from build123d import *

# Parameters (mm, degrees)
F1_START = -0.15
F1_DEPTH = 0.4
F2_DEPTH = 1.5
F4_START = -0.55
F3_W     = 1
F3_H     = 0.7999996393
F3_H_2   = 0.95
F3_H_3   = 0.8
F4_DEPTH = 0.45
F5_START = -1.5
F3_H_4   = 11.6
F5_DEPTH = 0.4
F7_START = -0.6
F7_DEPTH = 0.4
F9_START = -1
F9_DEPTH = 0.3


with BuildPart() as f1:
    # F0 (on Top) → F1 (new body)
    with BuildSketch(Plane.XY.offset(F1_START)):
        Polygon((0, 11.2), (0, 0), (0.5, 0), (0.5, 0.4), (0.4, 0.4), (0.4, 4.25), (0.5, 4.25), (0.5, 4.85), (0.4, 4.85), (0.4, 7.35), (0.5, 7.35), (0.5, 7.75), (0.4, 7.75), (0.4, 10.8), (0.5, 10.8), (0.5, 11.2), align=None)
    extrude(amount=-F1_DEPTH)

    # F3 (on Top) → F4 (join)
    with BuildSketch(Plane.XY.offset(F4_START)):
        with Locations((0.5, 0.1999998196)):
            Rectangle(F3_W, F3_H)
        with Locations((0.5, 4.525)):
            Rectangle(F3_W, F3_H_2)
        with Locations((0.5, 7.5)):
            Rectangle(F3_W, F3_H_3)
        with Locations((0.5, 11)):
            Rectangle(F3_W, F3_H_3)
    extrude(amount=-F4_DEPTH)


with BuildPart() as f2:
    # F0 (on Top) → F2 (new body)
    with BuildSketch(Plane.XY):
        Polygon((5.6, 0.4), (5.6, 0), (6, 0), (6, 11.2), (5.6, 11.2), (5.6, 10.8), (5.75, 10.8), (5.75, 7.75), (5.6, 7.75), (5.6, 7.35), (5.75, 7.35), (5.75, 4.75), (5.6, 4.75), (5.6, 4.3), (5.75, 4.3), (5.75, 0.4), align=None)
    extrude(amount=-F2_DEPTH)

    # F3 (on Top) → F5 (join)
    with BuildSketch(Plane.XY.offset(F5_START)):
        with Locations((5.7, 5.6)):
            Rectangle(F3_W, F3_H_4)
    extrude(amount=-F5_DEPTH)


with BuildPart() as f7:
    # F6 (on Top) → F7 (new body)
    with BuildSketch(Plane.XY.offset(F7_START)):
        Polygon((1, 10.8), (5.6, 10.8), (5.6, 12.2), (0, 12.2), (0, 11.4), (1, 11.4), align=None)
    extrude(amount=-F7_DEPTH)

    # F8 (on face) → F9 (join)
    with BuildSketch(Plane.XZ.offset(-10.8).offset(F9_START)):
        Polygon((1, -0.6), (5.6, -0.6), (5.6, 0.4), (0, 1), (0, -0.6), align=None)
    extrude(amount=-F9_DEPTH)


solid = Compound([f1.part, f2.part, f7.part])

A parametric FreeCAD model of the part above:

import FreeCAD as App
import Part
import Sketcher


def add_polygon(sketch, points):
    """Adds a closed chain of lines whose ends are joined by coincident constraints."""
    first, n = sketch.GeometryCount, len(points)
    for a, b in zip(points, points[1:] + points[:1]):
        sketch.addGeometry(Part.LineSegment(App.Vector(*a, 0), App.Vector(*b, 0)), False)
    for i in range(n):
        sketch.addConstraint(Sketcher.Constraint("Coincident", first + i, 2, first + (i + 1) % n, 1))

doc = App.newDocument("Part")
params = doc.addObject("Spreadsheet::Sheet", "Params")
for row, (alias, value) in enumerate([
    ("sketch1_width", "0.5 mm"),
    ("sketch1_width2", "0.1 mm"),
    ("sketch1_height", "11.2 mm"),
    ("sketch1_height2", "0.4 mm"),
    ("sketch1_height3", "0.6 mm"),
    ("pad1_length", "0.4 mm"),
    ("sketch2_width", "1 mm"),
    ("sketch2_height", "0.8 mm"),
    ("sketch2_height2", "0.95 mm"),
    ("pad2_length", "0.45 mm"),
    ("sketch3_width", "0.4 mm"),
    ("sketch3_height", "11.2 mm"),
    ("sketch3_height2", "2.6 mm"),
    ("sketch3_height3", "3.9 mm"),
    ("sketch3_width2", "0.15 mm"),
    ("pad3_length", "1.5 mm"),
    ("sketch4_width", "1 mm"),
    ("sketch4_height", "11.6 mm"),
    ("pad4_length", "0.4 mm"),
    ("sketch5_width", "1 mm"),
    ("sketch5_width2", "4.6 mm"),
    ("sketch5_height", "1.4 mm"),
    ("sketch5_height2", "0.8 mm"),
    ("pad5_length", "0.4 mm"),
    ("sketch6_height", "1 mm"),
    ("sketch6_width", "5.6 mm"),
    ("sketch6_height2", "1.6 mm"),
    ("pad6_length", "0.3 mm"),
], start=1):
    params.set(f"A{row}", alias)
    params.set(f"B{row}", "=" + value)
    params.setAlias(f"B{row}", alias)

body = doc.addObject("PartDesign::Body", "Body")

# Sketch on XY plane
sketch1 = body.newObject("Sketcher::SketchObject", "Sketch")
sketch1.AttachmentSupport = (doc.getObject("XY_Plane"), [""])
sketch1.MapMode = "FlatFace"
sketch1.AttachmentOffset = App.Placement(App.Vector(0, 0, -0.15), App.Rotation())
add_polygon(sketch1, [(0, 11.2), (0, 0), (0.5, 0), (0.5, 0.4), (0.4, 0.4), (0.4, 4.25), (0.5, 4.25), (0.5, 4.85), (0.4, 4.85), (0.4, 7.35), (0.5, 7.35), (0.5, 7.75), (0.4, 7.75), (0.4, 10.8), (0.5, 10.8), (0.5, 11.2)])  # lines 0-15
sketch1.addConstraint(Sketcher.Constraint("Vertical", 0))
sketch1.addConstraint(Sketcher.Constraint("Horizontal", 1))
sketch1.addConstraint(Sketcher.Constraint("Vertical", 2))
sketch1.addConstraint(Sketcher.Constraint("Horizontal", 3))
sketch1.addConstraint(Sketcher.Constraint("Vertical", 4))
sketch1.addConstraint(Sketcher.Constraint("Horizontal", 5))
sketch1.addConstraint(Sketcher.Constraint("Vertical", 6))
sketch1.addConstraint(Sketcher.Constraint("Horizontal", 7))
sketch1.addConstraint(Sketcher.Constraint("Vertical", 8))
sketch1.addConstraint(Sketcher.Constraint("Horizontal", 9))
sketch1.addConstraint(Sketcher.Constraint("Vertical", 10))
sketch1.addConstraint(Sketcher.Constraint("Horizontal", 11))
sketch1.addConstraint(Sketcher.Constraint("Vertical", 12))
sketch1.addConstraint(Sketcher.Constraint("Horizontal", 13))
sketch1.addConstraint(Sketcher.Constraint("Vertical", 14))
sketch1.addConstraint(Sketcher.Constraint("Horizontal", 15))
sketch1.addConstraint(Sketcher.Constraint("Coincident", 0, 2, -1, 1))
sketch1.addConstraint(Sketcher.Constraint("Vertical", 2, 2, 5, 2))
sketch1.addConstraint(Sketcher.Constraint("Vertical", 4, 2, 7, 2))
sketch1.addConstraint(Sketcher.Constraint("Vertical", 6, 2, 9, 2))
sketch1.addConstraint(Sketcher.Constraint("Vertical", 8, 2, 11, 2))
sketch1.addConstraint(Sketcher.Constraint("Vertical", 10, 2, 13, 2))
sketch1.addConstraint(Sketcher.Constraint("Equal", 2, 10))
sketch1.addConstraint(Sketcher.Constraint("Equal", 10, 14))
sketch1.addConstraint(Sketcher.Constraint("DistanceX", 1, 1, 1, 2, 0.5))
sketch1.addConstraint(Sketcher.Constraint("DistanceX", 3, 2, 3, 1, 0.1))
sketch1.addConstraint(Sketcher.Constraint("DistanceY", 0, 2, 0, 1, 11.2))
sketch1.addConstraint(Sketcher.Constraint("DistanceY", 2, 1, 2, 2, 0.4))
sketch1.addConstraint(Sketcher.Constraint("DistanceY", 6, 1, 6, 2, 0.6))
sketch1.addConstraint(Sketcher.Constraint("DistanceY", 8, 1, 8, 2, 2.5))
sketch1.addConstraint(Sketcher.Constraint("DistanceY", 4, 1, 4, 2, 3.85))
sketch1.setExpression("Constraints[40]", "Params.sketch1_width")
sketch1.setExpression("Constraints[41]", "Params.sketch1_width2")
sketch1.setExpression("Constraints[42]", "Params.sketch1_height")
sketch1.setExpression("Constraints[43]", "Params.sketch1_height2")
sketch1.setExpression("Constraints[44]", "Params.sketch1_height3")
pad1 = body.newObject("PartDesign::Pad", "Pad")
pad1.Profile = sketch1
pad1.setExpression("Length", "Params.pad1_length")
pad1.Reversed = True

# Sketch on XY plane
sketch2 = body.newObject("Sketcher::SketchObject", "Sketch001")
sketch2.AttachmentSupport = (doc.getObject("XY_Plane"), [""])
sketch2.MapMode = "FlatFace"
sketch2.AttachmentOffset = App.Placement(App.Vector(0, 0, -0.55), App.Rotation())
add_polygon(sketch2, [(0, 0.6), (0, -0.2), (1, -0.2), (1, 0.6)])  # lines 0-3
add_polygon(sketch2, [(0, 5), (0, 4.05), (1, 4.05), (1, 5)])  # lines 4-7
add_polygon(sketch2, [(0, 7.9), (0, 7.1), (1, 7.1), (1, 7.9)])  # lines 8-11
add_polygon(sketch2, [(0, 11.4), (0, 10.6), (1, 10.6), (1, 11.4)])  # lines 12-15
sketch2.addConstraint(Sketcher.Constraint("Vertical", 0))
sketch2.addConstraint(Sketcher.Constraint("Horizontal", 1))
sketch2.addConstraint(Sketcher.Constraint("Vertical", 2))
sketch2.addConstraint(Sketcher.Constraint("Horizontal", 3))
sketch2.addConstraint(Sketcher.Constraint("Vertical", 4))
sketch2.addConstraint(Sketcher.Constraint("Horizontal", 5))
sketch2.addConstraint(Sketcher.Constraint("Vertical", 6))
sketch2.addConstraint(Sketcher.Constraint("Horizontal", 7))
sketch2.addConstraint(Sketcher.Constraint("Vertical", 8))
sketch2.addConstraint(Sketcher.Constraint("Horizontal", 9))
sketch2.addConstraint(Sketcher.Constraint("Vertical", 10))
sketch2.addConstraint(Sketcher.Constraint("Horizontal", 11))
sketch2.addConstraint(Sketcher.Constraint("Vertical", 12))
sketch2.addConstraint(Sketcher.Constraint("Horizontal", 13))
sketch2.addConstraint(Sketcher.Constraint("Vertical", 14))
sketch2.addConstraint(Sketcher.Constraint("Horizontal", 15))
sketch2.addConstraint(Sketcher.Constraint("PointOnObject", 0, 2, -2))
sketch2.addConstraint(Sketcher.Constraint("PointOnObject", 4, 2, -2))
sketch2.addConstraint(Sketcher.Constraint("PointOnObject", 8, 2, -2))
sketch2.addConstraint(Sketcher.Constraint("PointOnObject", 12, 2, -2))
sketch2.addConstraint(Sketcher.Constraint("Vertical", 2, 2, 5, 2))
sketch2.addConstraint(Sketcher.Constraint("Vertical", 6, 2, 9, 2))
sketch2.addConstraint(Sketcher.Constraint("Vertical", 10, 2, 13, 2))
sketch2.addConstraint(Sketcher.Constraint("Equal", 2, 8))
sketch2.addConstraint(Sketcher.Constraint("Equal", 10, 12))
sketch2.addConstraint(Sketcher.Constraint("DistanceX", 1, 1, 1, 2, 1.0))
sketch2.addConstraint(Sketcher.Constraint("DistanceY", 0, 2, 0, 1, 0.8))
sketch2.addConstraint(Sketcher.Constraint("DistanceY", -1, 1, 6, 2, 5.0))
sketch2.addConstraint(Sketcher.Constraint("DistanceY", 4, 2, 4, 1, 0.95))
sketch2.addConstraint(Sketcher.Constraint("DistanceY", 0, 2, -1, 1, 0.2))
sketch2.addConstraint(Sketcher.Constraint("DistanceY", -1, 1, 8, 2, 7.1))
sketch2.addConstraint(Sketcher.Constraint("DistanceY", -1, 1, 12, 2, 10.6))
sketch2.setExpression("Constraints[41]", "Params.sketch2_width")
sketch2.setExpression("Constraints[42]", "Params.sketch2_height")
sketch2.setExpression("Constraints[44]", "Params.sketch2_height2")
pad2 = body.newObject("PartDesign::Pad", "Pad001")
pad2.Profile = sketch2
pad2.setExpression("Length", "Params.pad2_length")
pad2.Reversed = True
body2 = doc.addObject("PartDesign::Body", "Body001")

# Sketch on XY plane
sketch3 = body2.newObject("Sketcher::SketchObject", "Sketch002")
sketch3.AttachmentSupport = (doc.getObject("XY_Plane001"), [""])
sketch3.MapMode = "FlatFace"
add_polygon(sketch3, [(5.6, 0.4), (5.6, 0), (6, 0), (6, 11.2), (5.6, 11.2), (5.6, 10.8), (5.75, 10.8), (5.75, 7.75), (5.6, 7.75), (5.6, 7.35), (5.75, 7.35), (5.75, 4.75), (5.6, 4.75), (5.6, 4.3), (5.75, 4.3), (5.75, 0.4)])  # lines 0-15
sketch3.addConstraint(Sketcher.Constraint("Vertical", 0))
sketch3.addConstraint(Sketcher.Constraint("Horizontal", 1))
sketch3.addConstraint(Sketcher.Constraint("Vertical", 2))
sketch3.addConstraint(Sketcher.Constraint("Horizontal", 3))
sketch3.addConstraint(Sketcher.Constraint("Vertical", 4))
sketch3.addConstraint(Sketcher.Constraint("Horizontal", 5))
sketch3.addConstraint(Sketcher.Constraint("Vertical", 6))
sketch3.addConstraint(Sketcher.Constraint("Horizontal", 7))
sketch3.addConstraint(Sketcher.Constraint("Vertical", 8))
sketch3.addConstraint(Sketcher.Constraint("Horizontal", 9))
sketch3.addConstraint(Sketcher.Constraint("Vertical", 10))
sketch3.addConstraint(Sketcher.Constraint("Horizontal", 11))
sketch3.addConstraint(Sketcher.Constraint("Vertical", 12))
sketch3.addConstraint(Sketcher.Constraint("Horizontal", 13))
sketch3.addConstraint(Sketcher.Constraint("Vertical", 14))
sketch3.addConstraint(Sketcher.Constraint("Horizontal", 15))
sketch3.addConstraint(Sketcher.Constraint("PointOnObject", 0, 2, -1))
sketch3.addConstraint(Sketcher.Constraint("Vertical", 0, 2, 3, 2))
sketch3.addConstraint(Sketcher.Constraint("Vertical", 4, 2, 7, 2))
sketch3.addConstraint(Sketcher.Constraint("Vertical", 6, 2, 9, 2))
sketch3.addConstraint(Sketcher.Constraint("Vertical", 8, 2, 11, 2))
sketch3.addConstraint(Sketcher.Constraint("Vertical", 10, 2, 13, 2))
sketch3.addConstraint(Sketcher.Constraint("Equal", 3, 0))
sketch3.addConstraint(Sketcher.Constraint("Equal", 0, 4))
sketch3.addConstraint(Sketcher.Constraint("Equal", 4, 8))
sketch3.addConstraint(Sketcher.Constraint("DistanceX", 1, 1, 1, 2, 0.4))
sketch3.addConstraint(Sketcher.Constraint("DistanceY", 2, 1, 2, 2, 11.2))
sketch3.addConstraint(Sketcher.Constraint("DistanceY", 10, 2, 10, 1, 2.6))
sketch3.addConstraint(Sketcher.Constraint("DistanceY", 14, 2, 14, 1, 3.9))
sketch3.addConstraint(Sketcher.Constraint("DistanceX", -1, 1, 1, 2, 6.0))
sketch3.addConstraint(Sketcher.Constraint("DistanceX", 5, 1, 5, 2, 0.15))
sketch3.addConstraint(Sketcher.Constraint("DistanceY", 6, 2, 6, 1, 3.05))
sketch3.setExpression("Constraints[41]", "Params.sketch3_width")
sketch3.setExpression("Constraints[42]", "Params.sketch3_height")
sketch3.setExpression("Constraints[43]", "Params.sketch3_height2")
sketch3.setExpression("Constraints[44]", "Params.sketch3_height3")
sketch3.setExpression("Constraints[46]", "Params.sketch3_width2")
pad3 = body2.newObject("PartDesign::Pad", "Pad002")
pad3.Profile = sketch3
pad3.setExpression("Length", "Params.pad3_length")
pad3.Reversed = True

# Sketch on XY plane
sketch4 = body2.newObject("Sketcher::SketchObject", "Sketch003")
sketch4.AttachmentSupport = (doc.getObject("XY_Plane001"), [""])
sketch4.MapMode = "FlatFace"
sketch4.AttachmentOffset = App.Placement(App.Vector(0, 0, -1.5), App.Rotation())
add_polygon(sketch4, [(5.2, 11.4), (5.2, -0.2), (6.2, -0.2), (6.2, 11.4)])  # lines 0-3
sketch4.addConstraint(Sketcher.Constraint("Vertical", 0))
sketch4.addConstraint(Sketcher.Constraint("Horizontal", 1))
sketch4.addConstraint(Sketcher.Constraint("Vertical", 2))
sketch4.addConstraint(Sketcher.Constraint("Horizontal", 3))
sketch4.addConstraint(Sketcher.Constraint("DistanceX", 1, 1, 1, 2, 1.0))
sketch4.addConstraint(Sketcher.Constraint("DistanceY", 0, 2, 0, 1, 11.6))
sketch4.addConstraint(Sketcher.Constraint("DistanceX", -1, 1, 0, 2, 5.2))
sketch4.addConstraint(Sketcher.Constraint("DistanceY", 0, 2, -1, 1, 0.2))
sketch4.setExpression("Constraints[8]", "Params.sketch4_width")
sketch4.setExpression("Constraints[9]", "Params.sketch4_height")
pad4 = body2.newObject("PartDesign::Pad", "Pad003")
pad4.Profile = sketch4
pad4.setExpression("Length", "Params.pad4_length")
pad4.Reversed = True
body3 = doc.addObject("PartDesign::Body", "Body002")

# Sketch on XY plane
sketch5 = body3.newObject("Sketcher::SketchObject", "Sketch004")
sketch5.AttachmentSupport = (doc.getObject("XY_Plane002"), [""])
sketch5.MapMode = "FlatFace"
sketch5.AttachmentOffset = App.Placement(App.Vector(0, 0, -0.6), App.Rotation())
add_polygon(sketch5, [(1, 10.8), (5.6, 10.8), (5.6, 12.2), (0, 12.2), (0, 11.4), (1, 11.4)])  # lines 0-5
sketch5.addConstraint(Sketcher.Constraint("Horizontal", 0))
sketch5.addConstraint(Sketcher.Constraint("Vertical", 1))
sketch5.addConstraint(Sketcher.Constraint("Horizontal", 2))
sketch5.addConstraint(Sketcher.Constraint("Vertical", 3))
sketch5.addConstraint(Sketcher.Constraint("Horizontal", 4))
sketch5.addConstraint(Sketcher.Constraint("Vertical", 5))
sketch5.addConstraint(Sketcher.Constraint("PointOnObject", 2, 2, -2))
sketch5.addConstraint(Sketcher.Constraint("DistanceX", 4, 1, 4, 2, 1.0))
sketch5.addConstraint(Sketcher.Constraint("DistanceX", 0, 1, 0, 2, 4.6))
sketch5.addConstraint(Sketcher.Constraint("DistanceY", 1, 1, 1, 2, 1.4))
sketch5.addConstraint(Sketcher.Constraint("DistanceY", 3, 2, 3, 1, 0.8))
sketch5.addConstraint(Sketcher.Constraint("DistanceY", -1, 1, 0, 2, 10.8))
sketch5.setExpression("Constraints[13]", "Params.sketch5_width")
sketch5.setExpression("Constraints[14]", "Params.sketch5_width2")
sketch5.setExpression("Constraints[15]", "Params.sketch5_height")
sketch5.setExpression("Constraints[16]", "Params.sketch5_height2")
pad5 = body3.newObject("PartDesign::Pad", "Pad004")
pad5.Profile = sketch5
pad5.setExpression("Length", "Params.pad5_length")
pad5.Reversed = True

# Sketch on XZ plane
sketch6 = body3.newObject("Sketcher::SketchObject", "Sketch005")
sketch6.AttachmentSupport = (doc.getObject("XZ_Plane002"), [""])
sketch6.MapMode = "FlatFace"
sketch6.AttachmentOffset = App.Placement(App.Vector(0, 0, -11.8), App.Rotation())
add_polygon(sketch6, [(5.6, -0.6), (5.6, 0.4), (0, 1), (0, -0.6)])  # lines 0-3
sketch6.addConstraint(Sketcher.Constraint("Vertical", 0))
sketch6.addConstraint(Sketcher.Constraint("Vertical", 2))
sketch6.addConstraint(Sketcher.Constraint("Horizontal", 3))
sketch6.addConstraint(Sketcher.Constraint("PointOnObject", 1, 2, -2))
sketch6.addConstraint(Sketcher.Constraint("DistanceY", 0, 1, 0, 2, 1.0))
sketch6.addConstraint(Sketcher.Constraint("DistanceX", 3, 1, 3, 2, 5.6))
sketch6.addConstraint(Sketcher.Constraint("DistanceY", 2, 2, 2, 1, 1.6))
sketch6.addConstraint(Sketcher.Constraint("DistanceY", -1, 1, 1, 2, 1.0))
sketch6.setExpression("Constraints[8]", "Params.sketch6_height")
sketch6.setExpression("Constraints[9]", "Params.sketch6_width")
sketch6.setExpression("Constraints[10]", "Params.sketch6_height2")
pad6 = body3.newObject("PartDesign::Pad", "Pad005")
pad6.Profile = sketch6
pad6.setExpression("Length", "Params.pad6_length")
pad6.Reversed = True

doc.recompute()
